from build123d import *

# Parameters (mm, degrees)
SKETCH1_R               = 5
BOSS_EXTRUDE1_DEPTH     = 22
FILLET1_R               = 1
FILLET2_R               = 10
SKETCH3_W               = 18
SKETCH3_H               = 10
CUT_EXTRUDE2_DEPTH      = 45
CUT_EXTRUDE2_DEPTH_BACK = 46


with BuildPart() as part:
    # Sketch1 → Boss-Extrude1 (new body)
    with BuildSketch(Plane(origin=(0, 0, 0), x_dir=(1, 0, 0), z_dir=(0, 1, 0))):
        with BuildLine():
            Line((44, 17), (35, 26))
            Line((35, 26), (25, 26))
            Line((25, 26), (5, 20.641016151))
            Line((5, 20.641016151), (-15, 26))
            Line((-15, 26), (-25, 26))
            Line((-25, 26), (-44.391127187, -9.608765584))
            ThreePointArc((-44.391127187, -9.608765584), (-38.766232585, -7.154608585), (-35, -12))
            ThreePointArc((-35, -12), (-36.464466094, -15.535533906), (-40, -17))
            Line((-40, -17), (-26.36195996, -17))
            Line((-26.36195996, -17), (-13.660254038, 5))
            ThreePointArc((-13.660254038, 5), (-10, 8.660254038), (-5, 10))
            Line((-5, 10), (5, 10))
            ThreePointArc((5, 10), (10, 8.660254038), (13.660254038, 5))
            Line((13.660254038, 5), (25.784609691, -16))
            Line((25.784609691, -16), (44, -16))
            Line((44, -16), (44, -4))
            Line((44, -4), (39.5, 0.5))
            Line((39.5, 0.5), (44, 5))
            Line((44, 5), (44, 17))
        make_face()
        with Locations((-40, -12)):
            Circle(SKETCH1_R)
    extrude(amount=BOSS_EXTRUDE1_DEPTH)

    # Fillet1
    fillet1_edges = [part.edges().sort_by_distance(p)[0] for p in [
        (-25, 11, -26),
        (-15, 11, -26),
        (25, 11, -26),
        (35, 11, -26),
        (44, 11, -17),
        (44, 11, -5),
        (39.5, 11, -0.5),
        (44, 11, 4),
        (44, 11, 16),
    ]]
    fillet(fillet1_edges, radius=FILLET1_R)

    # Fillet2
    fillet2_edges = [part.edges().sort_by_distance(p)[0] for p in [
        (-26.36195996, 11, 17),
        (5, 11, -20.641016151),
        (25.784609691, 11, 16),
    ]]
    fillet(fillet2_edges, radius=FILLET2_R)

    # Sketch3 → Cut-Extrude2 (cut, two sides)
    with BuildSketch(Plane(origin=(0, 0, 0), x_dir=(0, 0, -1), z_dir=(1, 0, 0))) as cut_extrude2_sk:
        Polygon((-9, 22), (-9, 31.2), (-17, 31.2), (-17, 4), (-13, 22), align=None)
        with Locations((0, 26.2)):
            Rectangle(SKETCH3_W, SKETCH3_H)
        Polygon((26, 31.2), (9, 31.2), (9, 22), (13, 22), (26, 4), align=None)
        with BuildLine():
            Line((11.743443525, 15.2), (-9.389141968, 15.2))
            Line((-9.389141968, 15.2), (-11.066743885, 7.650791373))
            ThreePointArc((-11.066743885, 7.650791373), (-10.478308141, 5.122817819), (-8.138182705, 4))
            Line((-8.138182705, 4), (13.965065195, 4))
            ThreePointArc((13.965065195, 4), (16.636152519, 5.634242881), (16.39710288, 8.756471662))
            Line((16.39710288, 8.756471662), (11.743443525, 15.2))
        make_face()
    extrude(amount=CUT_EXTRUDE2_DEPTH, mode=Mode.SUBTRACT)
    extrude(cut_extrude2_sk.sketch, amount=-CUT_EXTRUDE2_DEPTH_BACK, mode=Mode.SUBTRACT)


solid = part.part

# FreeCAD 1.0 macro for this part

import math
import FreeCAD as App
import Part
import Sketcher

V = App.Vector
Q = App.Units.Quantity


def edges_at(feature, points):
    """Names of the edges that pass closest to the given points."""
    edges = feature.Shape.Edges
    near = lambda p: min(range(len(edges)), key=lambda i: edges[i].distToShape(Part.Vertex(*p))[0])
    return sorted({f"Edge{near(p) + 1}" for p in points})

doc = App.newDocument("Part")
body = doc.addObject("PartDesign::Body", "Body")

# Sketch on XZ plane
sketch1 = body.newObject("Sketcher::SketchObject", "Sketch")
sketch1.AttachmentSupport = (doc.getObject("XZ_Plane"), [""])
sketch1.MapMode = "FlatFace"
sketch1.addGeometry(Part.LineSegment(V(44, -17, 0), V(35, -26, 0)), False)
sketch1.addGeometry(Part.LineSegment(V(35, -26, 0), V(25, -26, 0)), False)
sketch1.addGeometry(Part.LineSegment(V(25, -26, 0), V(5, -21, 0)), False)
sketch1.addGeometry(Part.LineSegment(V(5, -21, 0), V(-15, -26, 0)), False)
sketch1.addGeometry(Part.LineSegment(V(-15, -26, 0), V(-25, -26, 0)), False)
sketch1.addGeometry(Part.LineSegment(V(-25, -26, 0), V(-44, 10, 0)), False)
sketch1.addGeometry(Part.ArcOfCircle(Part.Circle(V(-40, 12, 0), V(0, 0, 1), 5), math.radians(90), math.radians(209)), False)
sketch1.addGeometry(Part.LineSegment(V(-40, 17, 0), V(-26, 17, 0)), False)
sketch1.addGeometry(Part.LineSegment(V(-26, 17, 0), V(-14, -5, 0)), False)
sketch1.addGeometry(Part.ArcOfCircle(Part.Circle(V(-5, 0, 0), V(0, 0, 1), 10), math.radians(-150), math.radians(-90)), False)
sketch1.addGeometry(Part.LineSegment(V(-5, -10, 0), V(5, -10, 0)), False)
sketch1.addGeometry(Part.ArcOfCircle(Part.Circle(V(5, 0, 0), V(0, 0, 1), 10), math.radians(-90), math.radians(-30)), False)
sketch1.addGeometry(Part.LineSegment(V(14, -5, 0), V(26, 16, 0)), False)
sketch1.addGeometry(Part.LineSegment(V(26, 16, 0), V(44, 16, 0)), False)
sketch1.addGeometry(Part.LineSegment(V(44, 16, 0), V(44, 4, 0)), False)
sketch1.addGeometry(Part.LineSegment(V(44, 4, 0), V(40, 0, 0)), False)
sketch1.addGeometry(Part.LineSegment(V(40, 0, 0), V(44, -5, 0)), False)
sketch1.addGeometry(Part.LineSegment(V(44, -5, 0), V(44, -17, 0)), False)
sketch1.addConstraint(Sketcher.Constraint("Coincident", 0, 2, 1, 1))
sketch1.addConstraint(Sketcher.Constraint("Coincident", 1, 2, 2, 1))
sketch1.addConstraint(Sketcher.Constraint("Coincident", 2, 2, 3, 1))
sketch1.addConstraint(Sketcher.Constraint("Coincident", 3, 2, 4, 1))
sketch1.addConstraint(Sketcher.Constraint("Coincident", 4, 2, 5, 1))
sketch1.addConstraint(Sketcher.Constraint("Tangent", 5, 2, 6, 2))
sketch1.addConstraint(Sketcher.Constraint("Tangent", 6, 1, 7, 1))
sketch1.addConstraint(Sketcher.Constraint("Coincident", 7, 2, 8, 1))
sketch1.addConstraint(Sketcher.Constraint("Tangent", 8, 2, 9, 1))
sketch1.addConstraint(Sketcher.Constraint("Tangent", 9, 2, 10, 1))
sketch1.addConstraint(Sketcher.Constraint("Tangent", 10, 2, 11, 1))
sketch1.addConstraint(Sketcher.Constraint("Tangent", 11, 2, 12, 1))
sketch1.addConstraint(Sketcher.Constraint("Coincident", 12, 2, 13, 1))
sketch1.addConstraint(Sketcher.Constraint("Coincident", 13, 2, 14, 1))
sketch1.addConstraint(Sketcher.Constraint("Coincident", 14, 2, 15, 1))
sketch1.addConstraint(Sketcher.Constraint("Coincident", 15, 2, 16, 1))
sketch1.addConstraint(Sketcher.Constraint("Coincident", 16, 2, 17, 1))
sketch1.addConstraint(Sketcher.Constraint("Coincident", 17, 2, 0, 1))
sketch1.addConstraint(Sketcher.Constraint("Horizontal", 1))
sketch1.addConstraint(Sketcher.Constraint("Horizontal", 4))
sketch1.addConstraint(Sketcher.Constraint("Horizontal", 7))
sketch1.addConstraint(Sketcher.Constraint("Horizontal", 10))
sketch1.addConstraint(Sketcher.Constraint("Horizontal", 13))
sketch1.addConstraint(Sketcher.Constraint("Vertical", 14))
sketch1.addConstraint(Sketcher.Constraint("Vertical", 17))
sketch1.addConstraint(Sketcher.Constraint("Equal", 9, 11))
sketch1.addConstraint(Sketcher.Constraint("Symmetric", 9, 3, 11, 3, -1, 1))
sketch1.addConstraint(Sketcher.Constraint("Symmetric", 1, 2, 4, 2, -2))
sketch1.addConstraint(Sketcher.Constraint("Parallel", 0, 15))
sketch1.addConstraint(Sketcher.Constraint("Perpendicular", 15, 16))
sketch1.addConstraint(Sketcher.Constraint("Horizontal", 8, 2, 11, 2))
sketch1.addConstraint(Sketcher.Constraint("Horizontal", 11, 2, 16, 2))
sketch1.addConstraint(Sketcher.Constraint("Vertical", 11, 3, 2, 2))
sketch1.addConstraint(Sketcher.Constraint("Vertical", 14, 2, 16, 2))
sketch1.addConstraint(Sketcher.Constraint("Equal", 1, 4))
sketch1.addConstraint(Sketcher.Constraint("Equal", 4, 10))
sketch1.addConstraint(Sketcher.Constraint("Equal", 14, 17))
sketch1.addConstraint(Sketcher.Constraint("Equal", 15, 16))
sketch1.addConstraint(Sketcher.Constraint("Radius", 6, Q("5 mm")))
sketch1.addConstraint(Sketcher.Constraint("Radius", 9, Q("10 mm")))
sketch1.addConstraint(Sketcher.Constraint("DistanceX", 1, 2, 1, 1, Q("10 mm")))
sketch1.addConstraint(Sketcher.Constraint("DistanceY", 14, 2, 14, 1, Q("12 mm")))
sketch1.addConstraint(Sketcher.Constraint("Angle", 2, Q("165 deg")))
sketch1.addConstraint(Sketcher.Constraint("Angle", 8, Q("-60 deg")))
sketch1.addConstraint(Sketcher.Constraint("DistanceX", 6, 3, -1, 1, Q("40 mm")))
sketch1.addConstraint(Sketcher.Constraint("DistanceY", -1, 1, 6, 3, Q("12 mm")))
sketch1.addConstraint(Sketcher.Constraint("DistanceX", -1, 1, 0, 2, Q("35 mm")))
sketch1.addConstraint(Sketcher.Constraint("DistanceY", 0, 2, -1, 1, Q("26 mm")))
sketch1.addConstraint(Sketcher.Constraint("DistanceY", -1, 1, 12, 2, Q("16 mm")))
pad1 = body.newObject("PartDesign::Pad", "Pad")
pad1.Profile = sketch1
pad1.Length = 22
pad1.Reversed = True
doc.recompute()

fillet = body.newObject("PartDesign::Fillet", "Fillet")
fillet.Base = (pad1, edges_at(pad1, [
    (-25, 11, -26),
    (-15, 11, -26),
    (25, 11, -26),
    (35, 11, -26),
    (44, 11, -17),
    (44, 11, -5),
    (39.5, 11, -0.5),
    (44, 11, 4),
    (44, 11, 16),
]))
fillet.Radius = 1
doc.recompute()

fillet2 = body.newObject("PartDesign::Fillet", "Fillet001")
fillet2.Base = (fillet, edges_at(fillet, [(-26.362, 11, 17), (5, 11, -20.641), (25.785, 11, 16)]))
fillet2.Radius = 10

# Sketch on YZ plane
sketch2 = body.newObject("Sketcher::SketchObject", "Sketch001")
sketch2.AttachmentSupport = (doc.getObject("YZ_Plane"), [""])
sketch2.MapMode = "FlatFace"
sketch2.addGeometry(Part.LineSegment(V(31.2, 17, 0), V(4, 17, 0)), False)
sketch2.addGeometry(Part.LineSegment(V(4, 17, 0), V(22, 13, 0)), False)
sketch2.addGeometry(Part.LineSegment(V(22, 13, 0), V(22, 9, 0)), False)
sketch2.addGeometry(Part.LineSegment(V(22, 9, 0), V(21.2, 9, 0)), False)
sketch2.addGeometry(Part.LineSegment(V(21.2, 9, 0), V(21.2, -9, 0)), False)
sketch2.addGeometry(Part.LineSegment(V(21.2, -9, 0), V(22, -9, 0)), False)
sketch2.addGeometry(Part.LineSegment(V(22, -9, 0), V(22, -13, 0)), False)
sketch2.addGeometry(Part.LineSegment(V(22, -13, 0), V(4, -26, 0)), False)
sketch2.addGeometry(Part.LineSegment(V(4, -26, 0), V(31.2, -26, 0)), False)
sketch2.addGeometry(Part.LineSegment(V(31.2, -26, 0), V(31.2, 17, 0)), False)
sketch2.addGeometry(Part.LineSegment(V(15.2, -11.7, 0), V(15.2, 9.4, 0)), False)
sketch2.addGeometry(Part.LineSegment(V(15.2, 9.4, 0), V(7.7, 11.1, 0)), False)
sketch2.addGeometry(Part.ArcOfCircle(Part.Circle(V(7, 8.1, 0), V(0, 0, 1), 3), math.radians(77), math.radians(180)), False)
sketch2.addGeometry(Part.LineSegment(V(4, 8.1, 0), V(4, -14, 0)), False)
sketch2.addGeometry(Part.ArcOfCircle(Part.Circle(V(7, -14, 0), V(0, 0, 1), 3), math.radians(180), math.radians(306)), False)
sketch2.addGeometry(Part.LineSegment(V(8.8, -16.4, 0), V(15.2, -11.7, 0)), False)
sketch2.addConstraint(Sketcher.Constraint("Coincident", 0, 2, 1, 1))
sketch2.addConstraint(Sketcher.Constraint("Coincident", 1, 2, 2, 1))
sketch2.addConstraint(Sketcher.Constraint("Coincident", 2, 2, 3, 1))
sketch2.addConstraint(Sketcher.Constraint("Coincident", 3, 2, 4, 1))
sketch2.addConstraint(Sketcher.Constraint("Coincident", 4, 2, 5, 1))
sketch2.addConstraint(Sketcher.Constraint("Coincident", 5, 2, 6, 1))
sketch2.addConstraint(Sketcher.Constraint("Coincident", 6, 2, 7, 1))
sketch2.addConstraint(Sketcher.Constraint("Coincident", 7, 2, 8, 1))
sketch2.addConstraint(Sketcher.Constraint("Coincident", 8, 2, 9, 1))
sketch2.addConstraint(Sketcher.Constraint("Coincident", 9, 2, 0, 1))
sketch2.addConstraint(Sketcher.Constraint("Coincident", 10, 2, 11, 1))
sketch2.addConstraint(Sketcher.Constraint("Tangent", 11, 2, 12, 1))
sketch2.addConstraint(Sketcher.Constraint("Tangent", 12, 2, 13, 1))
sketch2.addConstraint(Sketcher.Constraint("Tangent", 13, 2, 14, 1))
sketch2.addConstraint(Sketcher.Constraint("Tangent", 14, 2, 15, 1))
sketch2.addConstraint(Sketcher.Constraint("Coincident", 15, 2, 10, 1))
sketch2.addConstraint(Sketcher.Constraint("Horizontal", 0))
sketch2.addConstraint(Sketcher.Constraint("Vertical", 2))
sketch2.addConstraint(Sketcher.Constraint("Horizontal", 3))
sketch2.addConstraint(Sketcher.Constraint("Vertical", 4))
sketch2.addConstraint(Sketcher.Constraint("Horizontal", 5))
sketch2.addConstraint(Sketcher.Constraint("Vertical", 6))
sketch2.addConstraint(Sketcher.Constraint("Horizontal", 8))
sketch2.addConstraint(Sketcher.Constraint("Vertical", 9))
sketch2.addConstraint(Sketcher.Constraint("Vertical", 10))
sketch2.addConstraint(Sketcher.Constraint("Vertical", 13))
sketch2.addConstraint(Sketcher.Constraint("Equal", 12, 14))
sketch2.addConstraint(Sketcher.Constraint("Symmetric", 2, 2, 5, 2, -1))
sketch2.addConstraint(Sketcher.Constraint("Parallel", 1, 11))
sketch2.addConstraint(Sketcher.Constraint("Parallel", 7, 15))
sketch2.addConstraint(Sketcher.Constraint("Vertical", 0, 2, 7, 2))
sketch2.addConstraint(Sketcher.Constraint("Vertical", 7, 2, 12, 2))
sketch2.addConstraint(Sketcher.Constraint("Equal", 2, 6))
sketch2.addConstraint(Sketcher.Constraint("Radius", 12, Q("3 mm")))
sketch2.addConstraint(Sketcher.Constraint("DistanceY", 2, 2, 2, 1, Q("4 mm")))
sketch2.addConstraint(Sketcher.Constraint("DistanceY", 4, 2, 4, 1, Q("18 mm")))
sketch2.addConstraint(Sketcher.Constraint("DistanceY", 9, 1, 9, 2, Q("43 mm")))
sketch2.addConstraint(Sketcher.Constraint("DistanceX", 0, 2, 0, 1, Q("27.2 mm")))
sketch2.addConstraint(Sketcher.Constraint("DistanceX", 3, 2, 3, 1, Q("0.8 mm")))
sketch2.addConstraint(Sketcher.Constraint("DistanceX", -1, 1, 12, 3, Q("7 mm")))
sketch2.addConstraint(Sketcher.Constraint("DistanceY", -1, 1, 0, 2, Q("17 mm")))
sketch2.addConstraint(Sketcher.Constraint("DistanceX", -1, 1, 1, 2, Q("22 mm")))
sketch2.addConstraint(Sketcher.Constraint("DistanceX", 10, 2, 3, 2, Q("6 mm")))
sketch2.addConstraint(Sketcher.Constraint("DistanceY", 10, 1, 10, 2, Q("21.132585 mm")))
sketch2.addConstraint(Sketcher.Constraint("DistanceY", -1, 1, 10, 2, Q("9.389142 mm")))
pocket1 = body.newObject("PartDesign::Pocket", "Pocket")
pocket1.Profile = sketch2
pocket1.Type = "ThroughAll"
pocket1.Midplane = True

doc.recompute()
